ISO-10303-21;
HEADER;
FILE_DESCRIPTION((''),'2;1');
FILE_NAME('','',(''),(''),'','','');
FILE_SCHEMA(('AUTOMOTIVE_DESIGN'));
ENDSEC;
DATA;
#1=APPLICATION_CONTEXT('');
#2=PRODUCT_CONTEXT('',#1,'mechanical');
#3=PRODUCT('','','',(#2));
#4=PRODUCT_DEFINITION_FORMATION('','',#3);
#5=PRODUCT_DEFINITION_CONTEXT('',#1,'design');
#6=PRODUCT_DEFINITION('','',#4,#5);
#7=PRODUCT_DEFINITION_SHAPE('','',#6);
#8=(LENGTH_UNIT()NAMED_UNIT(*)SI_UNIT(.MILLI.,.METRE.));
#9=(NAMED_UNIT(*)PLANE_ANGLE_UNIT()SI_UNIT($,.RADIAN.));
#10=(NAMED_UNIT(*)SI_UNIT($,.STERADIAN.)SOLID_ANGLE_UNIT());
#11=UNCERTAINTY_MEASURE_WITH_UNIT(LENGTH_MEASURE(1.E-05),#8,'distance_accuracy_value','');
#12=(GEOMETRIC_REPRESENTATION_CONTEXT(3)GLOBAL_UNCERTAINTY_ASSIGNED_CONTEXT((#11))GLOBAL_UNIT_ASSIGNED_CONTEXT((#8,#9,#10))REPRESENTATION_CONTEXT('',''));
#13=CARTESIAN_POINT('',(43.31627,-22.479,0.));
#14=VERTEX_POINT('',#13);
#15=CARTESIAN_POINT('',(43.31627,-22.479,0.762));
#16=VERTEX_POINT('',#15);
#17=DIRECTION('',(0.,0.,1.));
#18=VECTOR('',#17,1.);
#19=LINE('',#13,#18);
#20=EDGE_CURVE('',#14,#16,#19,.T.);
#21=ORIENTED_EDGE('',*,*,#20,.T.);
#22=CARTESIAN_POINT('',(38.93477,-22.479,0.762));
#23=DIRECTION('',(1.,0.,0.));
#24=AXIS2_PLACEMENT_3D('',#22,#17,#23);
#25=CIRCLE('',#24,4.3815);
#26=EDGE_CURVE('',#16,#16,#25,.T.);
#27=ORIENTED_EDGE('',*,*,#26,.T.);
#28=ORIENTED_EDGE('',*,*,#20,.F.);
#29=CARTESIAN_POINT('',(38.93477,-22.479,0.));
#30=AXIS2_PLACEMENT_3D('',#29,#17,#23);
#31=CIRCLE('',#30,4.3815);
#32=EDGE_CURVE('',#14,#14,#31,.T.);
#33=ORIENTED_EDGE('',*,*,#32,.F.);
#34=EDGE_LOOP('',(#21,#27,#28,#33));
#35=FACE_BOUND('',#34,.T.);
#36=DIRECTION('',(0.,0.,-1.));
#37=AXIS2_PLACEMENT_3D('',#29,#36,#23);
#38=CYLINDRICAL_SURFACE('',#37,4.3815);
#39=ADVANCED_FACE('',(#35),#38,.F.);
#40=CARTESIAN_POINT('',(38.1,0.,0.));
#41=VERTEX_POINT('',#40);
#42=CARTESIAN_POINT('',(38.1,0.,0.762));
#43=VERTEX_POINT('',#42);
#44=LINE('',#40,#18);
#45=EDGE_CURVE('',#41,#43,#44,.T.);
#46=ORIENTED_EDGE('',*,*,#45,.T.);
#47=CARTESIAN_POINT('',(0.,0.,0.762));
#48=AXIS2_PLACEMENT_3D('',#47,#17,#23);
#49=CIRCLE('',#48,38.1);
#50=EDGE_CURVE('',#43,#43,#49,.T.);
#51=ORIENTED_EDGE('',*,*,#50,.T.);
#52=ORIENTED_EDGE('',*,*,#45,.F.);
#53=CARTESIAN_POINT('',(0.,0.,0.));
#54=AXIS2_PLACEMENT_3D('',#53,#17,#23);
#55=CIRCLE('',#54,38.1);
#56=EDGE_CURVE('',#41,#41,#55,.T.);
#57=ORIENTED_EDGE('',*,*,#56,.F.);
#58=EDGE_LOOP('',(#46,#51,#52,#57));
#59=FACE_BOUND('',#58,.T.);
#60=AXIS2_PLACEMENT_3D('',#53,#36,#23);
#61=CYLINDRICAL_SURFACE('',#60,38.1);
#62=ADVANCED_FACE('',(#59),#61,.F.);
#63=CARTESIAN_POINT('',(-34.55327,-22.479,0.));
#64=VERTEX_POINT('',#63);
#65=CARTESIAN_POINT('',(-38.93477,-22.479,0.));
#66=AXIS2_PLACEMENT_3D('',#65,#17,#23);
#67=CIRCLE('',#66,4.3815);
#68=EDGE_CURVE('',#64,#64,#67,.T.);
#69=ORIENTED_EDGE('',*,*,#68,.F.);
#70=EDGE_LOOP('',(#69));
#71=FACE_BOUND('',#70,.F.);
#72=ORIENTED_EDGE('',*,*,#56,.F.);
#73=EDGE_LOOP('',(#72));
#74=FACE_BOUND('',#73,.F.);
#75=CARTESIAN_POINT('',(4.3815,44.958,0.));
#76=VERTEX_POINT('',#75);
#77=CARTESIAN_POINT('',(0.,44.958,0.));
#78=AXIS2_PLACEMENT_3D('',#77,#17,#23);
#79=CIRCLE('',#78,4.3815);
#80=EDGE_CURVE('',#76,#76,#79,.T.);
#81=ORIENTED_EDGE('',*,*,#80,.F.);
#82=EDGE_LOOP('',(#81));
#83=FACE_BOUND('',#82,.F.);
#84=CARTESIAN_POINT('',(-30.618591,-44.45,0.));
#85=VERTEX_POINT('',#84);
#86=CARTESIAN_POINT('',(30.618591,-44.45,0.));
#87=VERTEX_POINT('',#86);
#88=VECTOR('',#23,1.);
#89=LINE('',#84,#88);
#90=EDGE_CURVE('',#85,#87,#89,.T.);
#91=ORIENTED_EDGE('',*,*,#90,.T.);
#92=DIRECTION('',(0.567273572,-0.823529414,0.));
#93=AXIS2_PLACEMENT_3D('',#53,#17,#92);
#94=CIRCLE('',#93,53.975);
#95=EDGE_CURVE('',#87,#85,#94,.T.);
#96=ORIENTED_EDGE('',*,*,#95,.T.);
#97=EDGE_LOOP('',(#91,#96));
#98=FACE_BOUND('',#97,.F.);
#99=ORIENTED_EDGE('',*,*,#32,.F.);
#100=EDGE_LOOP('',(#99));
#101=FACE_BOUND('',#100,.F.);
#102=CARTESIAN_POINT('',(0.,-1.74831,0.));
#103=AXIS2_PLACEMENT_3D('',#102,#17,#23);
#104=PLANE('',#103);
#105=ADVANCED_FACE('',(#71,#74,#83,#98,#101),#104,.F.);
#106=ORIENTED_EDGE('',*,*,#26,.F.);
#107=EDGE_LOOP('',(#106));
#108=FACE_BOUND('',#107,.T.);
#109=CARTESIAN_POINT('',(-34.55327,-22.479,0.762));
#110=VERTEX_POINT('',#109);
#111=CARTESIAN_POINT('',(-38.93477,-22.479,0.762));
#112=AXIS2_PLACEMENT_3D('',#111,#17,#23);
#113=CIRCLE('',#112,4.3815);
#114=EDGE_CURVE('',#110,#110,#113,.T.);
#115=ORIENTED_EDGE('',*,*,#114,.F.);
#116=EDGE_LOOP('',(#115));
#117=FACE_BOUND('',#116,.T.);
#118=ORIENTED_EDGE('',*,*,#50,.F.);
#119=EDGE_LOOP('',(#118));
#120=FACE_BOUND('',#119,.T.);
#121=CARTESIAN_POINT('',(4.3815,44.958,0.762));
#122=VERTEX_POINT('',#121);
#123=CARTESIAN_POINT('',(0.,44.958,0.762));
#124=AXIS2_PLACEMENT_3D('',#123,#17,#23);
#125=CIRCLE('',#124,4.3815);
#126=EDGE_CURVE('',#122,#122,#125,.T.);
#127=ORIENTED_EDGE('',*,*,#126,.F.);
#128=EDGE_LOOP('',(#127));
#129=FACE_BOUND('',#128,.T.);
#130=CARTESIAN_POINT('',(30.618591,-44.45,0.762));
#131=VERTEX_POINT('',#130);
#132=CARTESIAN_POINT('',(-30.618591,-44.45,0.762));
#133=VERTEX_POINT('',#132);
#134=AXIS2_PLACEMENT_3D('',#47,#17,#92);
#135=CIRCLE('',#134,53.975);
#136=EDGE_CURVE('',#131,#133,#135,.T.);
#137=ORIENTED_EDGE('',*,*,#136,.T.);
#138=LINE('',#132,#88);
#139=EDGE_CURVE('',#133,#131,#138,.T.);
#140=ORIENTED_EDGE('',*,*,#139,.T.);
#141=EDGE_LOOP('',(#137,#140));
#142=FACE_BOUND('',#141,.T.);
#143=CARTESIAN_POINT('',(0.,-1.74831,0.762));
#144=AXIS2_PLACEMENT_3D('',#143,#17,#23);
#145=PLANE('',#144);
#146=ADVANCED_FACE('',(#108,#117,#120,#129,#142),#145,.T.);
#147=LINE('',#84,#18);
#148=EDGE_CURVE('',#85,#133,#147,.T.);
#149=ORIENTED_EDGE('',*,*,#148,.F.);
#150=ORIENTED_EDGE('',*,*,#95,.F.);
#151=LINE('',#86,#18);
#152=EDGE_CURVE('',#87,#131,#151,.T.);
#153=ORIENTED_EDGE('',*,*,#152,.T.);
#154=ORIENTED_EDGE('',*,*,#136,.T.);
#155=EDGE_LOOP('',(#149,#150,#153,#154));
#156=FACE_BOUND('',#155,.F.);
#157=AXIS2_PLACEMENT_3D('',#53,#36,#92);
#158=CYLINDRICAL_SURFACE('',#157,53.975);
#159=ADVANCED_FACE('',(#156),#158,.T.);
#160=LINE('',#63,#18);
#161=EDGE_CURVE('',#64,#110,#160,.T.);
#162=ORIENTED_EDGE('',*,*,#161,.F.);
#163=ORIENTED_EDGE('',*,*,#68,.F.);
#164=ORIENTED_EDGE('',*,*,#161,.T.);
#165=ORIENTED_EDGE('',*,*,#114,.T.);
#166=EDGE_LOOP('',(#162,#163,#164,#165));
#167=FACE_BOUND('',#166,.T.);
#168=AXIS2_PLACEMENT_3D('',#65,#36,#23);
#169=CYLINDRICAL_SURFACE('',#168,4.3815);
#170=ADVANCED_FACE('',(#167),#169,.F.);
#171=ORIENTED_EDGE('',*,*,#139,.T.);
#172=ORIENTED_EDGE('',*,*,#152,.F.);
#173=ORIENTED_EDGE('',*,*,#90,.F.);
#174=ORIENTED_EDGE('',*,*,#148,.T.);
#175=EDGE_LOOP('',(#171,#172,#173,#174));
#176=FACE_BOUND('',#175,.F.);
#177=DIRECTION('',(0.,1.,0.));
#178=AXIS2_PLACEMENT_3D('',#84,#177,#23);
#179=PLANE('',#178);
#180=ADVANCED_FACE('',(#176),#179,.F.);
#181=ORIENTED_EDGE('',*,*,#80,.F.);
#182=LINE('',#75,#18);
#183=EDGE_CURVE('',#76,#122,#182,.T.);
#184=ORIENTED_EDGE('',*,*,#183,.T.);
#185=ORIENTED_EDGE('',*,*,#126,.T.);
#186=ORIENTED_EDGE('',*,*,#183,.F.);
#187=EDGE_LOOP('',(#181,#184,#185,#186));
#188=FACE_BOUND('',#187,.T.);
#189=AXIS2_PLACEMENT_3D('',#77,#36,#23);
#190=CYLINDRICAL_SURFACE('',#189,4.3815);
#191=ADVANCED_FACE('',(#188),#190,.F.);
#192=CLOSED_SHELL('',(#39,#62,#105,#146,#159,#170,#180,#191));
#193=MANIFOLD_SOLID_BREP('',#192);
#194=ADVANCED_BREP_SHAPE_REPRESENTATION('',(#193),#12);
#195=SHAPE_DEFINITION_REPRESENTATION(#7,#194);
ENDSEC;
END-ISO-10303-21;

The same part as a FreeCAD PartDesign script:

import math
import FreeCAD as App
import Part
import Sketcher
Q = App.Units.Quantity

doc = App.newDocument("Part")
body = doc.addObject("PartDesign::Body", "Body")

# Sketch on XY plane
sketch1 = body.newObject("Sketcher::SketchObject", "Sketch")
sketch1.AttachmentSupport = (doc.getObject("XY_Plane"), [""])
sketch1.MapMode = "FlatFace"
sketch1.addGeometry(Part.LineSegment(App.Vector(-30.618591, -44.45, 0), App.Vector(30.618591, -44.45, 0)), False)
sketch1.addGeometry(Part.ArcOfCircle(Part.Circle(App.Vector(0, 0, 0), App.Vector(0, 0, 1), 53.975), math.radians(-55.439678), math.radians(235.439678)), False)
sketch1.addGeometry(Part.Circle(App.Vector(-38.93477, -22.479, 0), App.Vector(0, 0, 1), 4.3815), False)
sketch1.addGeometry(Part.Circle(App.Vector(0, 0, 0), App.Vector(0, 0, 1), 38.1), False)
sketch1.addGeometry(Part.Circle(App.Vector(38.93477, -22.479, 0), App.Vector(0, 0, 1), 4.3815), False)
sketch1.addGeometry(Part.Circle(App.Vector(0, 44.958, 0), App.Vector(0, 0, 1), 4.3815), False)
sketch1.addConstraint(Sketcher.Constraint("Coincident", 0, 1, 1, 2))
sketch1.addConstraint(Sketcher.Constraint("Coincident", 1, 1, 0, 2))
sketch1.addConstraint(Sketcher.Constraint("Horizontal", 0))
sketch1.addConstraint(Sketcher.Constraint("Coincident", 1, 3, -1, 1))
sketch1.addConstraint(Sketcher.Constraint("Coincident", 3, 3, -1, 1))
sketch1.addConstraint(Sketcher.Constraint("Equal", 2, 4))
sketch1.addConstraint(Sketcher.Constraint("Equal", 4, 5))
sketch1.addConstraint(Sketcher.Constraint("Symmetric", 2, 3, 4, 3, -2))
sketch1.addConstraint(Sketcher.Constraint("PointOnObject", 5, 3, -2))
sketch1.addConstraint(Sketcher.Constraint("Diameter", 3, Q("3 in")))
sketch1.addConstraint(Sketcher.Constraint("Diameter", 2, Q("0.345 in")))
sketch1.addConstraint(Sketcher.Constraint("Radius", 1, Q("2.125 in")))
sketch1.addConstraint(Sketcher.Constraint("DistanceY", -1, 1, 5, 3, Q("1.77 in")))
sketch1.addConstraint(Sketcher.Constraint("DistanceY", 0, 1, -1, 1, Q("1.75 in")))
sketch1.addConstraint(Sketcher.Constraint("DistanceY", 2, 3, -1, 1, Q("0.885 in")))
sketch1.addConstraint(Sketcher.Constraint("DistanceX", 2, 3, -1, 1, Q("38.93477 mm")))
pad1 = body.newObject("PartDesign::Pad", "Pad")
pad1.Profile = sketch1
pad1.Length = Q("0.03 in")

doc.recompute()
